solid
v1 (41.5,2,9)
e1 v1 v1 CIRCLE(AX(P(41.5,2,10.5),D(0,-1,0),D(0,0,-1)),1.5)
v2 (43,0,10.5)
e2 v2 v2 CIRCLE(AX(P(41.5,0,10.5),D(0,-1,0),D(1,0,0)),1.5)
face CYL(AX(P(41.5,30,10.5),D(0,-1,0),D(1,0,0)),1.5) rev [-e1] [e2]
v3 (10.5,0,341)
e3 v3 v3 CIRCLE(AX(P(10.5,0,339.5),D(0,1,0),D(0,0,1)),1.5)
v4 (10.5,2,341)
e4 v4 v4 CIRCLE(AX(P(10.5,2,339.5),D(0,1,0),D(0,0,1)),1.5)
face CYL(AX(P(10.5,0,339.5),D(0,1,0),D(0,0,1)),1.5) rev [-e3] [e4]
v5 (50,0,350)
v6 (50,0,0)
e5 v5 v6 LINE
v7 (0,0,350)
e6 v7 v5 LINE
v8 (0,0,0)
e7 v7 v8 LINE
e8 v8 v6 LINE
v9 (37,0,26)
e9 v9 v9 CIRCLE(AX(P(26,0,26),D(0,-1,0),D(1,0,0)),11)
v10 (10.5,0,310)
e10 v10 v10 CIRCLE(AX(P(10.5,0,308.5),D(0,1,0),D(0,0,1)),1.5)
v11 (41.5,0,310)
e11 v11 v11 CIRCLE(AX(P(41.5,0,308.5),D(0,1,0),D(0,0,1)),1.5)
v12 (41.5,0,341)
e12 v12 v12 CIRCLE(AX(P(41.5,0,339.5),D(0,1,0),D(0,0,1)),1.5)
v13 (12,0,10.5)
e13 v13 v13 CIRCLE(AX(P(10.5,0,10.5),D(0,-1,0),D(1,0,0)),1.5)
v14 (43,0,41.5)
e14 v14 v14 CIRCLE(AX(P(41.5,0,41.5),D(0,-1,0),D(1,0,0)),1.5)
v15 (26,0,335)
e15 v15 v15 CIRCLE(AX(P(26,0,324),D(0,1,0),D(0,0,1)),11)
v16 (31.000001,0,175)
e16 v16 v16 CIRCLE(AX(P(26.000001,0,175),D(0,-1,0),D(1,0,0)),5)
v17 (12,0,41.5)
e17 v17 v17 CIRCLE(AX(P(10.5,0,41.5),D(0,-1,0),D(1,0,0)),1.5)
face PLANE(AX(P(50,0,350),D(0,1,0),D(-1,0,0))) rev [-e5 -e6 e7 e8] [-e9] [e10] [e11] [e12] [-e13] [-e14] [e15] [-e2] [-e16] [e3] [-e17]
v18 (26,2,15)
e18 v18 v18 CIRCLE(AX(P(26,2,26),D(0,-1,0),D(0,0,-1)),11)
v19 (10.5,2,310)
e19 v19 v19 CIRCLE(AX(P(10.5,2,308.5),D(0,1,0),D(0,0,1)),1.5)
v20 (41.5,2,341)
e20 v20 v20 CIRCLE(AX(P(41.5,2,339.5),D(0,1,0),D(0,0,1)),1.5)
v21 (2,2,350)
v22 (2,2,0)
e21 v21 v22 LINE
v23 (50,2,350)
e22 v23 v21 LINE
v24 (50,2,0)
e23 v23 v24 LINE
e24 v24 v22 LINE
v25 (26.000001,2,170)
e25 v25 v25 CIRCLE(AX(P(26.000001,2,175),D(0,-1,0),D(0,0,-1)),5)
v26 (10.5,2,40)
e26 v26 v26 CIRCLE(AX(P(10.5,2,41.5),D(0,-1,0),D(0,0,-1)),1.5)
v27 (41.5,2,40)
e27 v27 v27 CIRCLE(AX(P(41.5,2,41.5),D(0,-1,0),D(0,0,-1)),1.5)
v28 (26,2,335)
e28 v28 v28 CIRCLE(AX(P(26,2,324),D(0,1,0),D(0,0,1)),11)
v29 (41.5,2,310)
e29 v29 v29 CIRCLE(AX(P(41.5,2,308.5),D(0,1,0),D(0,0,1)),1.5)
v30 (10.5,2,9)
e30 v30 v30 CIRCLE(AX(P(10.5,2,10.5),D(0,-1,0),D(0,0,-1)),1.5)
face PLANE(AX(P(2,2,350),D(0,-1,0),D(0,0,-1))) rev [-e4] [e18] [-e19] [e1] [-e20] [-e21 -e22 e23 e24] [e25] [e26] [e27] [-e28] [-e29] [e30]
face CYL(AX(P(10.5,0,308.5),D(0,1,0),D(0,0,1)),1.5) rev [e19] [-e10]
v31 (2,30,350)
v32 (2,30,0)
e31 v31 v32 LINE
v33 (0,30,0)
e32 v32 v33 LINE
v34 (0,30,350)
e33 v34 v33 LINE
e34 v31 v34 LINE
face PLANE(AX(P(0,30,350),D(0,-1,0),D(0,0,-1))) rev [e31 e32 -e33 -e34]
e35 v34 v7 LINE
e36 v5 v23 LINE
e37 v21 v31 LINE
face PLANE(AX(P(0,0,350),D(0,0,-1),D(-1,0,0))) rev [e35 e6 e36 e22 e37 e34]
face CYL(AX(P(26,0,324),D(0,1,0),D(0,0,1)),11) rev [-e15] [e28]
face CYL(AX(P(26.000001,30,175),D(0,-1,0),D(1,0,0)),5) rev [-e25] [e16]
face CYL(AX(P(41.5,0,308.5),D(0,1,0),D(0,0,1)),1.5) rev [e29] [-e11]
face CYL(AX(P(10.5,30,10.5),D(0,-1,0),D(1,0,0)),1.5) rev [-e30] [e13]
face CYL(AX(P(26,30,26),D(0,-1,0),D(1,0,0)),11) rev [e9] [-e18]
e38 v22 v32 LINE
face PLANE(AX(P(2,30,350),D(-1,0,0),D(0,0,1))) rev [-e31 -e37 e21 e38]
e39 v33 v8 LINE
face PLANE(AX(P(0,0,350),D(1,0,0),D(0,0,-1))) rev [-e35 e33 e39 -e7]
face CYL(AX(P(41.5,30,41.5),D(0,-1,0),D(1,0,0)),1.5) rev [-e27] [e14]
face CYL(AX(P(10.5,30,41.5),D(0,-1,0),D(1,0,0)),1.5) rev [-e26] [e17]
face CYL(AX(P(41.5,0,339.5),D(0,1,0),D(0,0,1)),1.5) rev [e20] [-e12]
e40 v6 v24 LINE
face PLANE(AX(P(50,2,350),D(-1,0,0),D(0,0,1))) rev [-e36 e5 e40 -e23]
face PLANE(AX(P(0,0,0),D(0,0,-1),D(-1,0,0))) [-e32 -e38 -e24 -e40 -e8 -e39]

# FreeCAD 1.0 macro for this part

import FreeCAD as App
import Part
import Sketcher
from FreeCAD import Vector


def add_polygon(sketch, points):
    """Adds a closed chain of lines whose ends are joined by coincident constraints."""
    first, n = sketch.GeometryCount, len(points)
    for a, b in zip(points, points[1:] + points[:1]):
        sketch.addGeometry(Part.LineSegment(App.Vector(*a, 0), App.Vector(*b, 0)), False)
    for i in range(n):
        sketch.addConstraint(Sketcher.Constraint("Coincident", first + i, 2, first + (i + 1) % n, 1))

doc = App.newDocument("Part")
body = doc.addObject("PartDesign::Body", "Body")

# Sketch on XY plane
sketch1 = body.newObject("Sketcher::SketchObject", "Sketch")
sketch1.AttachmentSupport = (doc.getObject("XY_Plane"), [""])
sketch1.MapMode = "FlatFace"
add_polygon(sketch1, [(0, 30), (0, 0), (50, 0), (50, 2), (2, 2), (2, 30)])  # lines 0-5
sketch1.addConstraint([
    Sketcher.Constraint("Vertical", 0),
    Sketcher.Constraint("Horizontal", 1),
    Sketcher.Constraint("Vertical", 2),
    Sketcher.Constraint("Horizontal", 3),
    Sketcher.Constraint("Vertical", 4),
    Sketcher.Constraint("Horizontal", 5),
    Sketcher.Constraint("Coincident", 0, 2, -1, 1),
    Sketcher.Constraint("Equal", 5, 2),
    Sketcher.Constraint("DistanceX", 1, 1, 1, 2, 50.0),
    Sketcher.Constraint("DistanceX", 3, 2, 3, 1, 48.0),
    Sketcher.Constraint("DistanceY", 0, 2, 0, 1, 30.0),
])
pad1 = body.newObject("PartDesign::Pad", "Pad")
pad1.Profile = sketch1
pad1.Length = 350

# Sketch on XZ plane
sketch2 = body.newObject("Sketcher::SketchObject", "Sketch001")
sketch2.AttachmentSupport = (doc.getObject("XZ_Plane"), [""])
sketch2.MapMode = "FlatFace"
sketch2.AttachmentOffset = App.Placement(Vector(0, 0, -2), App.Rotation())
sketch2.addGeometry([
    Part.Circle(Vector(41.5, 339.5, 0), Vector(0, 0, 1), 1.5),
    Part.Circle(Vector(10.5, 308.5, 0), Vector(0, 0, 1), 1.5),
    Part.Circle(Vector(10.5, 339.5, 0), Vector(0, 0, 1), 1.5),
    Part.Circle(Vector(41.5, 308.5, 0), Vector(0, 0, 1), 1.5),
], False)
sketch2.addConstraint([
    Sketcher.Constraint("Equal", 0, 1),
    Sketcher.Constraint("Equal", 1, 2),
    Sketcher.Constraint("Equal", 2, 3),
    Sketcher.Constraint("Horizontal", 0, 3, 2, 3),
    Sketcher.Constraint("Horizontal", 1, 3, 3, 3),
    Sketcher.Constraint("Vertical", 1, 3, 2, 3),
    Sketcher.Constraint("Vertical", 0, 3, 3, 3),
    Sketcher.Constraint("Diameter", 0, 3.0),
    Sketcher.Constraint("DistanceX", 1, 3, 0, 3, 31.0),
    Sketcher.Constraint("DistanceY", 1, 3, 0, 3, 31.0),
    Sketcher.Constraint("DistanceX", -1, 1, 0, 3, 41.5),
    Sketcher.Constraint("DistanceY", -1, 1, 0, 3, 339.5),
])
pocket1 = body.newObject("PartDesign::Pocket", "Pocket")
pocket1.Profile = sketch2
pocket1.Type = "ThroughAll"
pocket1.Reversed = True

# Sketch on XZ plane
sketch3 = body.newObject("Sketcher::SketchObject", "Sketch002")
sketch3.AttachmentSupport = (doc.getObject("XZ_Plane"), [""])
sketch3.MapMode = "FlatFace"
sketch3.AttachmentOffset = App.Placement(Vector(0, 0, -2), App.Rotation())
sketch3.addGeometry(Part.Circle(Vector(26, 324, 0), Vector(0, 0, 1), 11), False)
sketch3.addConstraint([
    Sketcher.Constraint("Diameter", 0, 22.0),
    Sketcher.Constraint("DistanceX", -1, 1, 0, 3, 26.0),
    Sketcher.Constraint("DistanceY", -1, 1, 0, 3, 324.0),
])
pocket2 = body.newObject("PartDesign::Pocket", "Pocket001")
pocket2.Profile = sketch3
pocket2.Type = "ThroughAll"
pocket2.Reversed = True

# Sketch on XZ plane
sketch4 = body.newObject("Sketcher::SketchObject", "Sketch003")
sketch4.AttachmentSupport = (doc.getObject("XZ_Plane"), [""])
sketch4.MapMode = "FlatFace"
sketch4.addGeometry(Part.Circle(Vector(26, 26, 0), Vector(0, 0, 1), 11), False)
sketch4.addConstraint([
    Sketcher.Constraint("Diameter", 0, 22.0),
    Sketcher.Constraint("DistanceX", -1, 1, 0, 3, 26.0),
    Sketcher.Constraint("DistanceY", -1, 1, 0, 3, 26.0),
])
pocket3 = body.newObject("PartDesign::Pocket", "Pocket002")
pocket3.Profile = sketch4
pocket3.Type = "ThroughAll"

# Sketch on XZ plane
sketch5 = body.newObject("Sketcher::SketchObject", "Sketch004")
sketch5.AttachmentSupport = (doc.getObject("XZ_Plane"), [""])
sketch5.MapMode = "FlatFace"
sketch5.addGeometry([
    Part.Circle(Vector(41.5, 41.5, 0), Vector(0, 0, 1), 1.5),
    Part.Circle(Vector(10.5, 41.5, 0), Vector(0, 0, 1), 1.5),
    Part.Circle(Vector(10.5, 10.5, 0), Vector(0, 0, 1), 1.5),
    Part.Circle(Vector(41.5, 10.5, 0), Vector(0, 0, 1), 1.5),
], False)
sketch5.addConstraint([
    Sketcher.Constraint("Equal", 0, 1),
    Sketcher.Constraint("Equal", 1, 2),
    Sketcher.Constraint("Equal", 2, 3),
    Sketcher.Constraint("Horizontal", 0, 3, 1, 3),
    Sketcher.Constraint("Horizontal", 2, 3, 3, 3),
    Sketcher.Constraint("Vertical", 1, 3, 2, 3),
    Sketcher.Constraint("Vertical", 0, 3, 3, 3),
    Sketcher.Constraint("Diameter", 0, 3.0),
    Sketcher.Constraint("DistanceX", 1, 3, 0, 3, 31.0),
    Sketcher.Constraint("DistanceY", 2, 3, 1, 3, 31.0),
    Sketcher.Constraint("DistanceX", -1, 1, 0, 3, 41.5),
    Sketcher.Constraint("DistanceY", -1, 1, 0, 3, 41.5),
])
pocket4 = body.newObject("PartDesign::Pocket", "Pocket003")
pocket4.Profile = sketch5
pocket4.Type = "ThroughAll"

# Sketch on XZ plane
sketch6 = body.newObject("Sketcher::SketchObject", "Sketch005")
sketch6.AttachmentSupport = (doc.getObject("XZ_Plane"), [""])
sketch6.MapMode = "FlatFace"
sketch6.addGeometry(Part.Circle(Vector(26.000001, 175, 0), Vector(0, 0, 1), 5), False)
sketch6.addConstraint([
    Sketcher.Constraint("Diameter", 0, 10.0),
    Sketcher.Constraint("DistanceX", -1, 1, 0, 3, 26.000001),
    Sketcher.Constraint("DistanceY", -1, 1, 0, 3, 175.0),
])
pocket5 = body.newObject("PartDesign::Pocket", "Pocket004")
pocket5.Profile = sketch6
pocket5.Type = "ThroughAll"

doc.recompute()
